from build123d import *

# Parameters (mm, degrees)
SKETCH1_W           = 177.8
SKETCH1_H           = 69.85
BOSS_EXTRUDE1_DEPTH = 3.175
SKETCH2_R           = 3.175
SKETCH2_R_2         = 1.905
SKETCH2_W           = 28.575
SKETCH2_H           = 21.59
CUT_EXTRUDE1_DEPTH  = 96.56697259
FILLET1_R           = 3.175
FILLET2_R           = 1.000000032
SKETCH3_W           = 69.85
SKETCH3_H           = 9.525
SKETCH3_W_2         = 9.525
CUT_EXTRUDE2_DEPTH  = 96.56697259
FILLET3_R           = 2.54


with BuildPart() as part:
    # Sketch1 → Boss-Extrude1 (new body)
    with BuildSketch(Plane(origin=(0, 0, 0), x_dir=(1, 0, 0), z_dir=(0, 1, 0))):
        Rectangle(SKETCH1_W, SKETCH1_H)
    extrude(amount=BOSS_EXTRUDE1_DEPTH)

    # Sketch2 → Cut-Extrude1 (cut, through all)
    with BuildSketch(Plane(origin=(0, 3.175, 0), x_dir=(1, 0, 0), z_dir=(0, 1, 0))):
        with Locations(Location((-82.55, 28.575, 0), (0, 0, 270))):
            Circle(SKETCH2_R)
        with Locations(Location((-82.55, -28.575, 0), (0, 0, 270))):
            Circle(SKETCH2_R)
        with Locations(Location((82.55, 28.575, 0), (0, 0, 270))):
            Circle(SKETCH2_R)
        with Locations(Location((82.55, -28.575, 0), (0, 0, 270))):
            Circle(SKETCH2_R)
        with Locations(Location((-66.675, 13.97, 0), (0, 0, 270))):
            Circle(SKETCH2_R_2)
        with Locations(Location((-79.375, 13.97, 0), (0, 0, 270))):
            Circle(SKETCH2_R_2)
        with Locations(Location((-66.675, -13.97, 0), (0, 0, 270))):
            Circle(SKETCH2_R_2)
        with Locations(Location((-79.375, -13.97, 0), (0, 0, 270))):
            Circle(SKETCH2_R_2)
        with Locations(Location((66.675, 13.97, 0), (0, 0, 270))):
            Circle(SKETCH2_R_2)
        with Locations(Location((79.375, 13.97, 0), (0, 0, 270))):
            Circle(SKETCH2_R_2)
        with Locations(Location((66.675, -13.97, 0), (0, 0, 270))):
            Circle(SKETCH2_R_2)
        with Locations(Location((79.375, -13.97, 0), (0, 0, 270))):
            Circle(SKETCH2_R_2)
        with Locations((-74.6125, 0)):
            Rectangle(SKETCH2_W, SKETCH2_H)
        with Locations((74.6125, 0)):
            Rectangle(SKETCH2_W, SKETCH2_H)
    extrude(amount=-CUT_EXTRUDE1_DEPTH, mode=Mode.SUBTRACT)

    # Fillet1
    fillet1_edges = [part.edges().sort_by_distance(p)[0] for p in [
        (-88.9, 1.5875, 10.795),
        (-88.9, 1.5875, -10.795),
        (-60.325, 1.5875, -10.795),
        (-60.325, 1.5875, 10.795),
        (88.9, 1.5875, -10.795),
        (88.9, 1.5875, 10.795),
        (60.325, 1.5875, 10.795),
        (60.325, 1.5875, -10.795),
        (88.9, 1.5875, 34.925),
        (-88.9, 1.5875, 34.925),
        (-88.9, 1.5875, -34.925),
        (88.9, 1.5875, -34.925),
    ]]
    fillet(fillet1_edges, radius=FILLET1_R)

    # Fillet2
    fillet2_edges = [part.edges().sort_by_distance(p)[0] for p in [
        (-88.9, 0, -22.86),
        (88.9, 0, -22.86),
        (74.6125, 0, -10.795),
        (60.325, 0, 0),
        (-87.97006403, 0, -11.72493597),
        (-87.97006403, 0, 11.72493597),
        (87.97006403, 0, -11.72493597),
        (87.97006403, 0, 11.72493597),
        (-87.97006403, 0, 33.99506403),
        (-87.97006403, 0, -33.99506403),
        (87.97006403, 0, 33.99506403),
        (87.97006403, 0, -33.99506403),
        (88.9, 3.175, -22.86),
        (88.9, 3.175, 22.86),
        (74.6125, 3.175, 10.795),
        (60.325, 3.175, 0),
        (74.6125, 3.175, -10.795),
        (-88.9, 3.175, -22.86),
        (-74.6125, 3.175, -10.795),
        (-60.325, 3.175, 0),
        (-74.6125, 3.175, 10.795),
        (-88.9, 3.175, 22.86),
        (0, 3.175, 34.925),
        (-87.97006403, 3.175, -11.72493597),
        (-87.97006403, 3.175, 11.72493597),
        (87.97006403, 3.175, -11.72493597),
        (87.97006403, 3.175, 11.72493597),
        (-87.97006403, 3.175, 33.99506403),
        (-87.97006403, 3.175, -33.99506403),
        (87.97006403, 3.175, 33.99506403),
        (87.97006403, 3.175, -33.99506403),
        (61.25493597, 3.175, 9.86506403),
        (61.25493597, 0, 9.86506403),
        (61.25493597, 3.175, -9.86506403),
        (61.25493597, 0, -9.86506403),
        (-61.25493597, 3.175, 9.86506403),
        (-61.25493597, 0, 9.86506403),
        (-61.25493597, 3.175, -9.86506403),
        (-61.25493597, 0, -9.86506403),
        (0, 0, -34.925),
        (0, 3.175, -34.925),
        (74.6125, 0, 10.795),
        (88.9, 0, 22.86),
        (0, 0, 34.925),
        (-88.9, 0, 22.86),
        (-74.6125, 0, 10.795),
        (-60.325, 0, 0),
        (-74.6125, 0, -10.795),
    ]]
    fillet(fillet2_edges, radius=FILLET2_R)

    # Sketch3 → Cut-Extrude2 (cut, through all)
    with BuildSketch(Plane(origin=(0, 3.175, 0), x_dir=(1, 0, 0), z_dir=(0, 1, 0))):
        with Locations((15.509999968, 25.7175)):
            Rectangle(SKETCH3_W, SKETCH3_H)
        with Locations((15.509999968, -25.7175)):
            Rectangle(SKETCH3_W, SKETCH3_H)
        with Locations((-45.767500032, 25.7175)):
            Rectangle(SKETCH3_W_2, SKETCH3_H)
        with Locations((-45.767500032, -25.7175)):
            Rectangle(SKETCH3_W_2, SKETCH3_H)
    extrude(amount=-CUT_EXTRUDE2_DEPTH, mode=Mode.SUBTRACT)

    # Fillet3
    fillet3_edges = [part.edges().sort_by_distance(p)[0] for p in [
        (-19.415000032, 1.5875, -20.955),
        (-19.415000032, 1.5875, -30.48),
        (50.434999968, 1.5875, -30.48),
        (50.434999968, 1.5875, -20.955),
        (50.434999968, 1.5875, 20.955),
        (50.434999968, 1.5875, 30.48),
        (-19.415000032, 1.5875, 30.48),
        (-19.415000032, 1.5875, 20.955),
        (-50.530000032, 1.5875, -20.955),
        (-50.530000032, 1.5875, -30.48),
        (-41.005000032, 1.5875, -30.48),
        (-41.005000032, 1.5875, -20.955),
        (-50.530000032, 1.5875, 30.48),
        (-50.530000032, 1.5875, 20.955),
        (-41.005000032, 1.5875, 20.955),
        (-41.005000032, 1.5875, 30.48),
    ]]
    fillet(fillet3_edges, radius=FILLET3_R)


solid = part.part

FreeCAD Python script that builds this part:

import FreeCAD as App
import Part
import Sketcher
from FreeCAD import Vector
Q = App.Units.Quantity


def edges_at(feature, points):
    """Names of the edges that pass closest to the given points."""
    edges = feature.Shape.Edges
    near = lambda p: min(range(len(edges)), key=lambda i: edges[i].distToShape(Part.Vertex(*p))[0])
    return sorted({f"Edge{near(p) + 1}" for p in points})


def add_polygon(sketch, points):
    """Adds a closed chain of lines whose ends are joined by coincident constraints."""
    first, n = sketch.GeometryCount, len(points)
    for a, b in zip(points, points[1:] + points[:1]):
        sketch.addGeometry(Part.LineSegment(App.Vector(*a, 0), App.Vector(*b, 0)), False)
    for i in range(n):
        sketch.addConstraint(Sketcher.Constraint("Coincident", first + i, 2, first + (i + 1) % n, 1))

doc = App.newDocument("Part")
body = doc.addObject("PartDesign::Body", "Body")

sketch1 = body.newObject("Sketcher::SketchObject", "Sketch")
sketch1.AttachmentSupport = (doc.getObject("XZ_Plane"), [""])
sketch1.MapMode = "FlatFace"
add_polygon(sketch1, [(-88.9, -34.925), (-88.9, 34.925), (88.9, 34.925), (88.9, -34.925)])
sketch1.addConstraint([
    Sketcher.Constraint("Vertical", 0),
    Sketcher.Constraint("Horizontal", 1),
    Sketcher.Constraint("Vertical", 2),
    Sketcher.Constraint("Horizontal", 3),
    Sketcher.Constraint("Symmetric", 0, 2, 2, 2, -1, 1),
    Sketcher.Constraint("DistanceX", 1, 1, 1, 2, Q("7 in")),
    Sketcher.Constraint("DistanceY", 0, 1, 0, 2, Q("2.75 in")),
])
pad1 = body.newObject("PartDesign::Pad", "Pad")
pad1.Profile = sketch1
pad1.Length = Q("0.125 in")
pad1.Reversed = True

sketch2 = body.newObject("Sketcher::SketchObject", "Sketch001")
sketch2.AttachmentSupport = (doc.getObject("XZ_Plane"), [""])
sketch2.MapMode = "FlatFace"
sketch2.AttachmentOffset = App.Placement(Vector(0, 0, -0.125 * 25.4), App.Rotation())
sketch2.addGeometry(Part.Circle(Vector(-82.55, -28.575, 0), Vector(0, 0, 1), 3.175), False)
sketch2.addGeometry(Part.Circle(Vector(-82.55, 28.575, 0), Vector(0, 0, 1), 3.175), False)
sketch2.addGeometry(Part.Circle(Vector(82.55, -28.575, 0), Vector(0, 0, 1), 3.175), False)
sketch2.addGeometry(Part.Circle(Vector(82.55, 28.575, 0), Vector(0, 0, 1), 3.175), False)
sketch2.addGeometry(Part.Circle(Vector(-66.675, -13.97, 0), Vector(0, 0, 1), 1.905), False)
sketch2.addGeometry(Part.Circle(Vector(-79.375, -13.97, 0), Vector(0, 0, 1), 1.905), False)
sketch2.addGeometry(Part.Circle(Vector(-66.675, 13.97, 0), Vector(0, 0, 1), 1.905), False)
sketch2.addGeometry(Part.Circle(Vector(-79.375, 13.97, 0), Vector(0, 0, 1), 1.905), False)
sketch2.addGeometry(Part.Circle(Vector(66.675, -13.97, 0), Vector(0, 0, 1), 1.905), False)
sketch2.addGeometry(Part.Circle(Vector(79.375, -13.97, 0), Vector(0, 0, 1), 1.905), False)
sketch2.addGeometry(Part.Circle(Vector(66.675, 13.97, 0), Vector(0, 0, 1), 1.905), False)
sketch2.addGeometry(Part.Circle(Vector(79.375, 13.97, 0), Vector(0, 0, 1), 1.905), False)
add_polygon(sketch2, [(-88.9, -10.795), (-88.9, 10.795), (-60.325, 10.795), (-60.325, -10.795)])
add_polygon(sketch2, [(60.325, -10.795), (60.325, 10.795), (88.9, 10.795), (88.9, -10.795)])
sketch2.addConstraint([
    Sketcher.Constraint("Vertical", 12),
    Sketcher.Constraint("Horizontal", 13),
    Sketcher.Constraint("Vertical", 14),
    Sketcher.Constraint("Horizontal", 15),
    Sketcher.Constraint("Vertical", 16),
    Sketcher.Constraint("Horizontal", 17),
    Sketcher.Constraint("Vertical", 18),
    Sketcher.Constraint("Horizontal", 19),
    Sketcher.Constraint("Equal", 0, 1),
    Sketcher.Constraint("Equal", 1, 2),
    Sketcher.Constraint("Equal", 2, 3),
    Sketcher.Constraint("Equal", 4, 5),
    Sketcher.Constraint("Equal", 5, 6),
    Sketcher.Constraint("Equal", 6, 7),
    Sketcher.Constraint("Equal", 7, 8),
    Sketcher.Constraint("Equal", 8, 9),
    Sketcher.Constraint("Equal", 9, 10),
    Sketcher.Constraint("Equal", 10, 11),
    Sketcher.Constraint("Symmetric", 1, 3, 2, 3, -1, 1),
    Sketcher.Constraint("Symmetric", 0, 3, 3, 3, -1, 1),
    Sketcher.Constraint("Symmetric", 6, 3, 8, 3, -1, 1),
    Sketcher.Constraint("Symmetric", 7, 3, 9, 3, -1, 1),
    Sketcher.Constraint("Symmetric", 4, 3, 10, 3, -1, 1),
    Sketcher.Constraint("Symmetric", 5, 3, 11, 3, -1, 1),
    Sketcher.Constraint("Symmetric", 14, 2, 16, 2, -1, 1),
    Sketcher.Constraint("Symmetric", 12, 2, 18, 2, -1, 1),
    Sketcher.Constraint("Symmetric", 0, 3, 2, 3, -2),
    Sketcher.Constraint("Symmetric", 4, 3, 8, 3, -2),
    Sketcher.Constraint("Symmetric", 5, 3, 9, 3, -2),
    Sketcher.Constraint("Horizontal", 4, 3, 5, 3),
    Sketcher.Constraint("Horizontal", 13, 2, 16, 2),
    Sketcher.Constraint("Diameter", 0, Q("0.25 in")),
    Sketcher.Constraint("Diameter", 4, Q("0.15 in")),
    Sketcher.Constraint("DistanceY", 12, 1, 12, 2, Q("0.85 in")),
    Sketcher.Constraint("DistanceX", 12, 2, -1, 1, Q("3.5 in")),
    Sketcher.Constraint("DistanceX", 0, 3, 2, 3, Q("6.5 in")),
    Sketcher.Constraint("DistanceX", 5, 3, 4, 3, Q("0.5 in")),
    Sketcher.Constraint("DistanceY", 4, 3, 6, 3, Q("1.1 in")),
    Sketcher.Constraint("DistanceY", 12, 2, 1, 3, Q("0.7 in")),
    Sketcher.Constraint("DistanceX", 13, 1, 13, 2, Q("1.125 in")),
    Sketcher.Constraint("DistanceX", 4, 3, 8, 3, Q("5.25 in")),
])
pocket1 = body.newObject("PartDesign::Pocket", "Pocket")
pocket1.Profile = sketch2
pocket1.Type = "ThroughAll"
pocket1.Reversed = True
doc.recompute()

fillet = body.newObject("PartDesign::Fillet", "Fillet")
fillet.Base = (pocket1, edges_at(pocket1, [
    (-88.9, 1.587, 10.795),
    (-88.9, 1.587, -10.795),
    (-60.325, 1.587, -10.795),
    (-60.325, 1.587, 10.795),
    (88.9, 1.587, -10.795),
    (88.9, 1.587, 10.795),
    (60.325, 1.587, 10.795),
    (60.325, 1.587, -10.795),
    (88.9, 1.587, 34.925),
    (-88.9, 1.587, 34.925),
    (-88.9, 1.587, -34.925),
    (88.9, 1.587, -34.925),
]))
fillet.Radius = Q("0.125 in")
doc.recompute()

fillet2 = body.newObject("PartDesign::Fillet", "Fillet001")
fillet2.Base = (fillet, edges_at(fillet, [
    (-88.9, 0, -22.86),
    (88.9, 0, -22.86),
    (74.612, 0, -10.795),
    (60.325, 0, 0),
    (-87.97, 0, -11.725),
    (-87.97, 0, 11.725),
    (87.97, 0, -11.725),
    (87.97, 0, 11.725),
    (-87.97, 0, 33.995),
    (-87.97, 0, -33.995),
    (87.97, 0, 33.995),
    (87.97, 0, -33.995),
    (88.9, 3.175, -22.86),
    (88.9, 3.175, 22.86),
    (74.612, 3.175, 10.795),
    (60.325, 3.175, 0),
    (74.612, 3.175, -10.795),
    (-88.9, 3.175, -22.86),
    (-74.612, 3.175, -10.795),
    (-60.325, 3.175, 0),
    (-74.612, 3.175, 10.795),
    (-88.9, 3.175, 22.86),
    (0, 3.175, 34.925),
    (-87.97, 3.175, -11.725),
    (-87.97, 3.175, 11.725),
    (87.97, 3.175, -11.725),
    (87.97, 3.175, 11.725),
    (-87.97, 3.175, 33.995),
    (-87.97, 3.175, -33.995),
    (87.97, 3.175, 33.995),
    (87.97, 3.175, -33.995),
    (61.255, 3.175, 9.865),
    (61.255, 0, 9.865),
    (61.255, 3.175, -9.865),
    (61.255, 0, -9.865),
    (-61.255, 3.175, 9.865),
    (-61.255, 0, 9.865),
    (-61.255, 3.175, -9.865),
    (-61.255, 0, -9.865),
    (0, 0, -34.925),
    (0, 3.175, -34.925),
    (74.612, 0, 10.795),
    (88.9, 0, 22.86),
    (0, 0, 34.925),
    (-88.9, 0, 22.86),
    (-74.612, 0, 10.795),
    (-60.325, 0, 0),
    (-74.612, 0, -10.795),
]))
fillet2.Radius = 1

sketch3 = body.newObject("Sketcher::SketchObject", "Sketch002")
sketch3.AttachmentSupport = (doc.getObject("XZ_Plane"), [""])
sketch3.MapMode = "FlatFace"
sketch3.AttachmentOffset = App.Placement(Vector(0, 0, -0.125 * 25.4), App.Rotation())
add_polygon(sketch3, [(-19.415, -30.48), (-19.415, -20.955), (50.435, -20.955), (50.435, -30.48)])
add_polygon(sketch3, [(-19.415, 20.955), (-19.415, 30.48), (50.435, 30.48), (50.435, 20.955)])
add_polygon(sketch3, [(-50.53, -30.48), (-50.53, -20.955), (-41.005, -20.955), (-41.005, -30.48)])
add_polygon(sketch3, [(-50.53, 20.955), (-50.53, 30.48), (-41.005, 30.48), (-41.005, 20.955)])
sketch3.addConstraint([
    Sketcher.Constraint("Vertical", 0),
    Sketcher.Constraint("Horizontal", 1),
    Sketcher.Constraint("Vertical", 2),
    Sketcher.Constraint("Horizontal", 3),
    Sketcher.Constraint("Vertical", 4),
    Sketcher.Constraint("Horizontal", 5),
    Sketcher.Constraint("Vertical", 6),
    Sketcher.Constraint("Horizontal", 7),
    Sketcher.Constraint("Vertical", 8),
    Sketcher.Constraint("Horizontal", 9),
    Sketcher.Constraint("Vertical", 10),
    Sketcher.Constraint("Horizontal", 11),
    Sketcher.Constraint("Vertical", 12),
    Sketcher.Constraint("Horizontal", 13),
    Sketcher.Constraint("Vertical", 14),
    Sketcher.Constraint("Horizontal", 15),
    Sketcher.Constraint("Symmetric", 3, 2, 4, 2, -1),
    Sketcher.Constraint("Symmetric", 1, 2, 6, 2, -1),
    Sketcher.Constraint("Symmetric", 11, 2, 12, 2, -1),
    Sketcher.Constraint("Symmetric", 9, 2, 14, 2, -1),
    Sketcher.Constraint("Horizontal", 1, 2, 8, 2),
    Sketcher.Constraint("Horizontal", 3, 2, 10, 2),
    Sketcher.Constraint("Equal", 15, 0),
    Sketcher.Constraint("DistanceX", 1, 1, 1, 2, Q("2.75 in")),
    Sketcher.Constraint("DistanceY", 2, 2, -1, 1, Q("1.2 in")),
    Sketcher.Constraint("DistanceX", 9, 1, 9, 2, Q("0.375 in")),
    Sketcher.Constraint("DistanceX", 9, 2, 0, 2, Q("0.85 in")),
    Sketcher.Constraint("DistanceX", 0, 2, -1, 1, 19.415),
])
pocket2 = body.newObject("PartDesign::Pocket", "Pocket001")
pocket2.Profile = sketch3
pocket2.Type = "ThroughAll"
pocket2.Reversed = True
doc.recompute()

fillet3 = body.newObject("PartDesign::Fillet", "Fillet002")
fillet3.Base = (pocket2, edges_at(pocket2, [
    (-19.415, 1.587, -20.955),
    (-19.415, 1.587, -30.48),
    (50.435, 1.587, -30.48),
    (50.435, 1.587, -20.955),
    (50.435, 1.587, 20.955),
    (50.435, 1.587, 30.48),
    (-19.415, 1.587, 30.48),
    (-19.415, 1.587, 20.955),
    (-50.53, 1.587, -20.955),
    (-50.53, 1.587, -30.48),
    (-41.005, 1.587, -30.48),
    (-41.005, 1.587, -20.955),
    (-50.53, 1.587, 30.48),
    (-50.53, 1.587, 20.955),
    (-41.005, 1.587, 20.955),
    (-41.005, 1.587, 30.48),
]))
fillet3.Radius = Q("0.1 in")

doc.recompute()
